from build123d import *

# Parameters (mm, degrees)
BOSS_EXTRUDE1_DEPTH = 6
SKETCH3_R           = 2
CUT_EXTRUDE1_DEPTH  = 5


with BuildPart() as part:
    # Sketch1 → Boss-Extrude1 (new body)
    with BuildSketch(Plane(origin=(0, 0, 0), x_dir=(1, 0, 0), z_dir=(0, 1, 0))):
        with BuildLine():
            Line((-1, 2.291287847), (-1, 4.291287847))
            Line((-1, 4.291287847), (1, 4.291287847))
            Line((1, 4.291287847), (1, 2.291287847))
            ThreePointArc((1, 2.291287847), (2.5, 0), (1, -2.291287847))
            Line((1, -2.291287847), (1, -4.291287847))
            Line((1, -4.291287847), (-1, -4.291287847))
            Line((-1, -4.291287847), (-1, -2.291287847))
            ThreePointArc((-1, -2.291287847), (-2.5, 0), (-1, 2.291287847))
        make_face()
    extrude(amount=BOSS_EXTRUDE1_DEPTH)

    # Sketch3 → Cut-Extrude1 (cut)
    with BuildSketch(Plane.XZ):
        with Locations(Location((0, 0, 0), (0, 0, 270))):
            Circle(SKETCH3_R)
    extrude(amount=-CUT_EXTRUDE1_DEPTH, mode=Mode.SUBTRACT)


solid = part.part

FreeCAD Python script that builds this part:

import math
import FreeCAD as App
import Part
import Sketcher

doc = App.newDocument("Part")
body = doc.addObject("PartDesign::Body", "Body")

sketch1 = doc.addObject("Sketcher::SketchObject", "Sketch")
body.addObject(sketch1)
sketch1.AttachmentSupport = (doc.XZ_Plane, [""])
sketch1.MapMode = "FlatFace"
sketch1.addGeometry(Part.LineSegment(App.Vector(-1, -4.3, 0), App.Vector(-1, -2.3, 0)), False)
sketch1.addGeometry(Part.ArcOfCircle(Part.Circle(App.Vector(0, 0, 0), App.Vector(0, 0, 1), 2.5), math.radians(114), math.radians(246)), False)
sketch1.addGeometry(Part.LineSegment(App.Vector(-1, 2.3, 0), App.Vector(-1, 4.3, 0)), False)
sketch1.addGeometry(Part.LineSegment(App.Vector(-1, 4.3, 0), App.Vector(1, 4.3, 0)), False)
sketch1.addGeometry(Part.LineSegment(App.Vector(1, 4.3, 0), App.Vector(1, 2.3, 0)), False)
sketch1.addGeometry(Part.ArcOfCircle(Part.Circle(App.Vector(0, 0, 0), App.Vector(0, 0, 1), 2.5), math.radians(-66), math.radians(66)), False)
sketch1.addGeometry(Part.LineSegment(App.Vector(1, -2.3, 0), App.Vector(1, -4.3, 0)), False)
sketch1.addGeometry(Part.LineSegment(App.Vector(1, -4.3, 0), App.Vector(-1, -4.3, 0)), False)
sketch1.addConstraint(Sketcher.Constraint("Coincident", 0, 2, 1, 2))
sketch1.addConstraint(Sketcher.Constraint("Coincident", 1, 1, 2, 1))
sketch1.addConstraint(Sketcher.Constraint("Coincident", 2, 2, 3, 1))
sketch1.addConstraint(Sketcher.Constraint("Coincident", 3, 2, 4, 1))
sketch1.addConstraint(Sketcher.Constraint("Coincident", 4, 2, 5, 2))
sketch1.addConstraint(Sketcher.Constraint("Coincident", 5, 1, 6, 1))
sketch1.addConstraint(Sketcher.Constraint("Coincident", 6, 2, 7, 1))
sketch1.addConstraint(Sketcher.Constraint("Coincident", 7, 2, 0, 1))
sketch1.addConstraint(Sketcher.Constraint("Vertical", 0))
sketch1.addConstraint(Sketcher.Constraint("Vertical", 2))
sketch1.addConstraint(Sketcher.Constraint("Horizontal", 3))
sketch1.addConstraint(Sketcher.Constraint("Vertical", 4))
sketch1.addConstraint(Sketcher.Constraint("Vertical", 6))
sketch1.addConstraint(Sketcher.Constraint("Horizontal", 7))
sketch1.addConstraint(Sketcher.Constraint("Coincident", 1, 3, -1, 1))
sketch1.addConstraint(Sketcher.Constraint("Coincident", 5, 3, -1, 1))
sketch1.addConstraint(Sketcher.Constraint("Equal", 1, 5))
sketch1.addConstraint(Sketcher.Constraint("Symmetric", 2, 2, 6, 2, -1, 1))
sketch1.addConstraint(Sketcher.Constraint("Horizontal", 1, 1, 4, 2))
sketch1.addConstraint(Sketcher.Constraint("Horizontal", 0, 2, 5, 1))
sketch1.addConstraint(Sketcher.Constraint("Equal", 7, 0))
sketch1.addConstraint(Sketcher.Constraint("Radius", 1, 2.5))
sketch1.addConstraint(Sketcher.Constraint("DistanceX", 3, 1, 3, 2, 2.0))
pad1 = doc.addObject("PartDesign::Pad", "Pad")
body.addObject(pad1)
pad1.Profile = sketch1
pad1.Length = 6
pad1.Reversed = True

sketch2 = doc.addObject("Sketcher::SketchObject", "Sketch001")
body.addObject(sketch2)
sketch2.AttachmentSupport = (doc.XZ_Plane, [""])
sketch2.MapMode = "FlatFace"
sketch2.addGeometry(Part.Circle(App.Vector(0, 0, 0), App.Vector(0, 0, 1), 2), False)
sketch2.addConstraint(Sketcher.Constraint("Coincident", 0, 3, -1, 1))
sketch2.addConstraint(Sketcher.Constraint("Diameter", 0, 4.0))
pocket1 = doc.addObject("PartDesign::Pocket", "Pocket")
body.addObject(pocket1)
pocket1.Profile = sketch2
pocket1.Length = 5

doc.recompute()
